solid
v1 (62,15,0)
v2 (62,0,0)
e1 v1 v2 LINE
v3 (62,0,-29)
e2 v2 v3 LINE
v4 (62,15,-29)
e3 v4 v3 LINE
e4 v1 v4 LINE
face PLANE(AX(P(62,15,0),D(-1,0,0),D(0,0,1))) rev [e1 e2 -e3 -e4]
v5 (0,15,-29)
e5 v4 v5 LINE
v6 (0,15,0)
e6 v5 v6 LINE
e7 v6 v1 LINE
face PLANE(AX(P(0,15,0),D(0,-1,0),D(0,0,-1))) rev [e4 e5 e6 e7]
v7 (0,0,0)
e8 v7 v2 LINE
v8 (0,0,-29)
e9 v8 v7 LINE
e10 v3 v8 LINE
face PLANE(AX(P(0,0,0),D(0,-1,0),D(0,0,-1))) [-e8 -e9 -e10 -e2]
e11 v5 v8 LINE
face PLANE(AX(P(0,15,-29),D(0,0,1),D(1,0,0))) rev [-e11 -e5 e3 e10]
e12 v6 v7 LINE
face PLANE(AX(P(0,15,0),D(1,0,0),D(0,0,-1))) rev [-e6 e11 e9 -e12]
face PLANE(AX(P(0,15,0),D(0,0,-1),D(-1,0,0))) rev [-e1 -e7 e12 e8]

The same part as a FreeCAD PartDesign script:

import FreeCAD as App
import Part
import Sketcher
Q = App.Units.Quantity

doc = App.newDocument("Part")
body = doc.addObject("PartDesign::Body", "Body")

# Sketch on XZ plane
sketch1 = doc.addObject("Sketcher::SketchObject", "Sketch")
body.addObject(sketch1)
sketch1.AttachmentSupport = (doc.XZ_Plane, [""])
sketch1.MapMode = "FlatFace"
sketch1.addGeometry([
    Part.LineSegment(App.Vector(0, -29, 0), App.Vector(0, 0, 0)),
    Part.LineSegment(App.Vector(0, 0, 0), App.Vector(62, 0, 0)),
    Part.LineSegment(App.Vector(62, 0, 0), App.Vector(62, -29, 0)),
    Part.LineSegment(App.Vector(62, -29, 0), App.Vector(0, -29, 0)),
], False)
sketch1.addConstraint([
    Sketcher.Constraint("Coincident", 0, 2, 1, 1),
    Sketcher.Constraint("Coincident", 1, 2, 2, 1),
    Sketcher.Constraint("Coincident", 2, 2, 3, 1),
    Sketcher.Constraint("Coincident", 3, 2, 0, 1),
    Sketcher.Constraint("Vertical", 0),
    Sketcher.Constraint("Horizontal", 1),
    Sketcher.Constraint("Vertical", 2),
    Sketcher.Constraint("Horizontal", 3),
    Sketcher.Constraint("Coincident", 0, 2, -1, 1),
    Sketcher.Constraint("DistanceX", 1, 1, 1, 2, Q("62 mm")),
    Sketcher.Constraint("DistanceY", 0, 1, 0, 2, Q("29 mm")),
])
pad1 = doc.addObject("PartDesign::Pad", "Pad")
body.addObject(pad1)
pad1.Profile = sketch1
pad1.Length = 15
pad1.Reversed = True

doc.recompute()
